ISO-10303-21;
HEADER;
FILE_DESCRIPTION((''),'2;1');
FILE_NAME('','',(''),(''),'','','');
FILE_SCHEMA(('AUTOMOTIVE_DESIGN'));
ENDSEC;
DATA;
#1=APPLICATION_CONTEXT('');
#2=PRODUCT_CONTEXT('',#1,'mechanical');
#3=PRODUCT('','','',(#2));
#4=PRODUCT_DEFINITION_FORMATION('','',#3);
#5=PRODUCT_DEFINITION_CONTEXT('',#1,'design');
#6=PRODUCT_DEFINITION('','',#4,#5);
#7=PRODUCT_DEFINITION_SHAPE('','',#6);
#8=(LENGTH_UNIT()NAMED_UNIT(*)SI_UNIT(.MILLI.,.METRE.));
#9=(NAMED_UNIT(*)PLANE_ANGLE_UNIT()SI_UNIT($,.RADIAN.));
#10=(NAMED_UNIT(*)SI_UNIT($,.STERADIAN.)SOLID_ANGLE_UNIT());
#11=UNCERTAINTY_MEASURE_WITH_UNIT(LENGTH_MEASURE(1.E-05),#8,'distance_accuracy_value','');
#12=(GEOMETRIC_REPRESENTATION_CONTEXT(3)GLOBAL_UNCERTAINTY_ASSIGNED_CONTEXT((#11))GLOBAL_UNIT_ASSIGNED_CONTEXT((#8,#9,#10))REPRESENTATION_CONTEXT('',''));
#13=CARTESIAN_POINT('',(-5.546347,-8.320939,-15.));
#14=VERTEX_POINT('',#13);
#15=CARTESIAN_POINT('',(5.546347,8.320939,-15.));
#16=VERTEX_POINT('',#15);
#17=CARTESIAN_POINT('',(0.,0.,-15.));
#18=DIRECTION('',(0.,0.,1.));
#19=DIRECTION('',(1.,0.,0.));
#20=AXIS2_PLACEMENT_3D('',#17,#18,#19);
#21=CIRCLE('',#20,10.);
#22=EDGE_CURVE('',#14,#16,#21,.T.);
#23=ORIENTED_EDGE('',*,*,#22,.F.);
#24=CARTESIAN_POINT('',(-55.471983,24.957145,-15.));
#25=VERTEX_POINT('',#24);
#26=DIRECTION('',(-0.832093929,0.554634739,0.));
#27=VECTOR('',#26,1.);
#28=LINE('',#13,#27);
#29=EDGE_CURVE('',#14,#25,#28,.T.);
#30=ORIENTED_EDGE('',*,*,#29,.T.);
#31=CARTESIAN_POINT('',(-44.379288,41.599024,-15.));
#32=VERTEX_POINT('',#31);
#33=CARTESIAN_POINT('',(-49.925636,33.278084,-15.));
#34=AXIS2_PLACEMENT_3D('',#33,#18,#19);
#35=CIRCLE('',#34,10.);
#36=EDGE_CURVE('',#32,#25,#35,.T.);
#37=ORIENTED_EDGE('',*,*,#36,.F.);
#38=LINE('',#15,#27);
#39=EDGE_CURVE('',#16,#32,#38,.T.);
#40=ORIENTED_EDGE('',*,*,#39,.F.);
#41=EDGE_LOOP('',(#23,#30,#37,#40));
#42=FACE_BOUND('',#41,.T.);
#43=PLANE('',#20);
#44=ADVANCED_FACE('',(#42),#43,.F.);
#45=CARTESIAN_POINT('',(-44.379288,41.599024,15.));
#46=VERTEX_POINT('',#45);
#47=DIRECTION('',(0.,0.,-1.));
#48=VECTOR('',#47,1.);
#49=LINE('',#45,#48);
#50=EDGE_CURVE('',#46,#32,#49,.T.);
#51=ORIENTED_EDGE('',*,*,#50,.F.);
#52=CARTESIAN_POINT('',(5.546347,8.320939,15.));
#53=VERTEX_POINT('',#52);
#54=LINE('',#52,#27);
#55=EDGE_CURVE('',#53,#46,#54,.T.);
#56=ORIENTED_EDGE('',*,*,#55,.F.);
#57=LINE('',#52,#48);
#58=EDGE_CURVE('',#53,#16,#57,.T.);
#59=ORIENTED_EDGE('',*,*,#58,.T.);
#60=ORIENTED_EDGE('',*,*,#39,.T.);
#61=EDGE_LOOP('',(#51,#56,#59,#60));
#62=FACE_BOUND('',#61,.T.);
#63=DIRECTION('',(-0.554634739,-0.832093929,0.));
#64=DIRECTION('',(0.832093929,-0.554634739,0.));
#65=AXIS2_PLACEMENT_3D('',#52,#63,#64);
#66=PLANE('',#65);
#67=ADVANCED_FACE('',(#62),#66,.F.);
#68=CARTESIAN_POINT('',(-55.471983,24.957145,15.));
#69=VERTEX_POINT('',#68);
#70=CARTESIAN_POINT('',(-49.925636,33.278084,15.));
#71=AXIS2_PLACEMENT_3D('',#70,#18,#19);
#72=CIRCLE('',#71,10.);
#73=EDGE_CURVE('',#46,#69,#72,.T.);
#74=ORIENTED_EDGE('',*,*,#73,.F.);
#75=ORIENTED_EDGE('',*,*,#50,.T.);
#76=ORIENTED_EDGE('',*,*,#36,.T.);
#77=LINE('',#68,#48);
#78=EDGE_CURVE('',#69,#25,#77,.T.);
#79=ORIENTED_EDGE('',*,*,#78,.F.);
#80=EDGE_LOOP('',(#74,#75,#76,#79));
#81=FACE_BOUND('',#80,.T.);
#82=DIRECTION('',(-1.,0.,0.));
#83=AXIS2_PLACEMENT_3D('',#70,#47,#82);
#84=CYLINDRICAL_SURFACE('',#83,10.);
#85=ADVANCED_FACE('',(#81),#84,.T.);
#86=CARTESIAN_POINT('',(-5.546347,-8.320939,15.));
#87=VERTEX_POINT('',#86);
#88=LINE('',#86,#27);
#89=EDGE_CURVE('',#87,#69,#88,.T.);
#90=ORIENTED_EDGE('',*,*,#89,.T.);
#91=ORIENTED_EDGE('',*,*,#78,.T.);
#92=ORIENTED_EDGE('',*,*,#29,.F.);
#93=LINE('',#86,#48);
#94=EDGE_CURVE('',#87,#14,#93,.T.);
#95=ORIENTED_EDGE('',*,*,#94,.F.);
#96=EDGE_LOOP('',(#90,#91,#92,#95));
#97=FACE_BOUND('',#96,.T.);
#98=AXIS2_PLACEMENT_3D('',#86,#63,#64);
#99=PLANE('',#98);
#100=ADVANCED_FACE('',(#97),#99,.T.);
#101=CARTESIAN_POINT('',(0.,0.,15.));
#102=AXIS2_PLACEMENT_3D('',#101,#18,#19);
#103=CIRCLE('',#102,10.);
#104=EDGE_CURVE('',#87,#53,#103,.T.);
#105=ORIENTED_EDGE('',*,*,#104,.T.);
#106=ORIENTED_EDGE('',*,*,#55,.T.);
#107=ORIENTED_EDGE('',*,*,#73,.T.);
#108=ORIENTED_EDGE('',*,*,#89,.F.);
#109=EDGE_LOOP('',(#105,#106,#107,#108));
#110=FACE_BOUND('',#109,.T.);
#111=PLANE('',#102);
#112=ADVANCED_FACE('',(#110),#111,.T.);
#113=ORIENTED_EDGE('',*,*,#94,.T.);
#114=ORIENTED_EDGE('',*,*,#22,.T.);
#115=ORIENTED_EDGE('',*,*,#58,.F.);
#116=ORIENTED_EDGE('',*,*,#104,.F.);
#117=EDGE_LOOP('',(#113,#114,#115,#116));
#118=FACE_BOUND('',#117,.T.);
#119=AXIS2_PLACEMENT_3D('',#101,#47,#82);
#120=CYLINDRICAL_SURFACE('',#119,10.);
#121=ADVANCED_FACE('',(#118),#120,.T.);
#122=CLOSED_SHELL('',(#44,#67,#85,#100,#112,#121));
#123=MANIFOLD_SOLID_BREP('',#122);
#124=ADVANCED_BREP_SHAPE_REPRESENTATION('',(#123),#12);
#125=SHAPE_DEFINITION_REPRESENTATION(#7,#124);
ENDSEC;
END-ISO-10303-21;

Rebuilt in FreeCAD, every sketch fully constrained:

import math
import FreeCAD as App
import Part
import Sketcher

V = App.Vector
Q = App.Units.Quantity

doc = App.newDocument("Part")
body = doc.addObject("PartDesign::Body", "Body")

# Sketch on XY plane
sketch1 = body.newObject("Sketcher::SketchObject", "Sketch")
sketch1.AttachmentSupport = (doc.getObject("XY_Plane"), [""])
sketch1.MapMode = "FlatFace"
sketch1.addGeometry([
    Part.LineSegment(V(-55, 25, 0), V(-6, -8, 0)),
    Part.ArcOfCircle(Part.Circle(V(0, 0, 0), V(0, 0, 1), 10), math.radians(-124), math.radians(56)),
    Part.LineSegment(V(6, 8, 0), V(-44, 42, 0)),
    Part.ArcOfCircle(Part.Circle(V(-50, 33, 0), V(0, 0, 1), 10), math.radians(56), math.radians(236)),
], False)
sketch1.addConstraint([
    Sketcher.Constraint("Tangent", 0, 2, 1, 1),
    Sketcher.Constraint("Tangent", 1, 2, 2, 1),
    Sketcher.Constraint("Tangent", 2, 2, 3, 1),
    Sketcher.Constraint("Tangent", 3, 2, 0, 1),
    Sketcher.Constraint("Coincident", 1, 3, -1, 1),
    Sketcher.Constraint("Equal", 1, 3),
    Sketcher.Constraint("Radius", 1, Q("10 mm")),
    Sketcher.Constraint("Distance", 0, Q("60 mm")),
    Sketcher.Constraint("DistanceY", 0, 2, -1, 1, Q("8.320939 mm")),
])
pad1 = body.newObject("PartDesign::Pad", "Pad")
pad1.Profile = sketch1
pad1.Length = 30
pad1.Midplane = True

doc.recompute()
